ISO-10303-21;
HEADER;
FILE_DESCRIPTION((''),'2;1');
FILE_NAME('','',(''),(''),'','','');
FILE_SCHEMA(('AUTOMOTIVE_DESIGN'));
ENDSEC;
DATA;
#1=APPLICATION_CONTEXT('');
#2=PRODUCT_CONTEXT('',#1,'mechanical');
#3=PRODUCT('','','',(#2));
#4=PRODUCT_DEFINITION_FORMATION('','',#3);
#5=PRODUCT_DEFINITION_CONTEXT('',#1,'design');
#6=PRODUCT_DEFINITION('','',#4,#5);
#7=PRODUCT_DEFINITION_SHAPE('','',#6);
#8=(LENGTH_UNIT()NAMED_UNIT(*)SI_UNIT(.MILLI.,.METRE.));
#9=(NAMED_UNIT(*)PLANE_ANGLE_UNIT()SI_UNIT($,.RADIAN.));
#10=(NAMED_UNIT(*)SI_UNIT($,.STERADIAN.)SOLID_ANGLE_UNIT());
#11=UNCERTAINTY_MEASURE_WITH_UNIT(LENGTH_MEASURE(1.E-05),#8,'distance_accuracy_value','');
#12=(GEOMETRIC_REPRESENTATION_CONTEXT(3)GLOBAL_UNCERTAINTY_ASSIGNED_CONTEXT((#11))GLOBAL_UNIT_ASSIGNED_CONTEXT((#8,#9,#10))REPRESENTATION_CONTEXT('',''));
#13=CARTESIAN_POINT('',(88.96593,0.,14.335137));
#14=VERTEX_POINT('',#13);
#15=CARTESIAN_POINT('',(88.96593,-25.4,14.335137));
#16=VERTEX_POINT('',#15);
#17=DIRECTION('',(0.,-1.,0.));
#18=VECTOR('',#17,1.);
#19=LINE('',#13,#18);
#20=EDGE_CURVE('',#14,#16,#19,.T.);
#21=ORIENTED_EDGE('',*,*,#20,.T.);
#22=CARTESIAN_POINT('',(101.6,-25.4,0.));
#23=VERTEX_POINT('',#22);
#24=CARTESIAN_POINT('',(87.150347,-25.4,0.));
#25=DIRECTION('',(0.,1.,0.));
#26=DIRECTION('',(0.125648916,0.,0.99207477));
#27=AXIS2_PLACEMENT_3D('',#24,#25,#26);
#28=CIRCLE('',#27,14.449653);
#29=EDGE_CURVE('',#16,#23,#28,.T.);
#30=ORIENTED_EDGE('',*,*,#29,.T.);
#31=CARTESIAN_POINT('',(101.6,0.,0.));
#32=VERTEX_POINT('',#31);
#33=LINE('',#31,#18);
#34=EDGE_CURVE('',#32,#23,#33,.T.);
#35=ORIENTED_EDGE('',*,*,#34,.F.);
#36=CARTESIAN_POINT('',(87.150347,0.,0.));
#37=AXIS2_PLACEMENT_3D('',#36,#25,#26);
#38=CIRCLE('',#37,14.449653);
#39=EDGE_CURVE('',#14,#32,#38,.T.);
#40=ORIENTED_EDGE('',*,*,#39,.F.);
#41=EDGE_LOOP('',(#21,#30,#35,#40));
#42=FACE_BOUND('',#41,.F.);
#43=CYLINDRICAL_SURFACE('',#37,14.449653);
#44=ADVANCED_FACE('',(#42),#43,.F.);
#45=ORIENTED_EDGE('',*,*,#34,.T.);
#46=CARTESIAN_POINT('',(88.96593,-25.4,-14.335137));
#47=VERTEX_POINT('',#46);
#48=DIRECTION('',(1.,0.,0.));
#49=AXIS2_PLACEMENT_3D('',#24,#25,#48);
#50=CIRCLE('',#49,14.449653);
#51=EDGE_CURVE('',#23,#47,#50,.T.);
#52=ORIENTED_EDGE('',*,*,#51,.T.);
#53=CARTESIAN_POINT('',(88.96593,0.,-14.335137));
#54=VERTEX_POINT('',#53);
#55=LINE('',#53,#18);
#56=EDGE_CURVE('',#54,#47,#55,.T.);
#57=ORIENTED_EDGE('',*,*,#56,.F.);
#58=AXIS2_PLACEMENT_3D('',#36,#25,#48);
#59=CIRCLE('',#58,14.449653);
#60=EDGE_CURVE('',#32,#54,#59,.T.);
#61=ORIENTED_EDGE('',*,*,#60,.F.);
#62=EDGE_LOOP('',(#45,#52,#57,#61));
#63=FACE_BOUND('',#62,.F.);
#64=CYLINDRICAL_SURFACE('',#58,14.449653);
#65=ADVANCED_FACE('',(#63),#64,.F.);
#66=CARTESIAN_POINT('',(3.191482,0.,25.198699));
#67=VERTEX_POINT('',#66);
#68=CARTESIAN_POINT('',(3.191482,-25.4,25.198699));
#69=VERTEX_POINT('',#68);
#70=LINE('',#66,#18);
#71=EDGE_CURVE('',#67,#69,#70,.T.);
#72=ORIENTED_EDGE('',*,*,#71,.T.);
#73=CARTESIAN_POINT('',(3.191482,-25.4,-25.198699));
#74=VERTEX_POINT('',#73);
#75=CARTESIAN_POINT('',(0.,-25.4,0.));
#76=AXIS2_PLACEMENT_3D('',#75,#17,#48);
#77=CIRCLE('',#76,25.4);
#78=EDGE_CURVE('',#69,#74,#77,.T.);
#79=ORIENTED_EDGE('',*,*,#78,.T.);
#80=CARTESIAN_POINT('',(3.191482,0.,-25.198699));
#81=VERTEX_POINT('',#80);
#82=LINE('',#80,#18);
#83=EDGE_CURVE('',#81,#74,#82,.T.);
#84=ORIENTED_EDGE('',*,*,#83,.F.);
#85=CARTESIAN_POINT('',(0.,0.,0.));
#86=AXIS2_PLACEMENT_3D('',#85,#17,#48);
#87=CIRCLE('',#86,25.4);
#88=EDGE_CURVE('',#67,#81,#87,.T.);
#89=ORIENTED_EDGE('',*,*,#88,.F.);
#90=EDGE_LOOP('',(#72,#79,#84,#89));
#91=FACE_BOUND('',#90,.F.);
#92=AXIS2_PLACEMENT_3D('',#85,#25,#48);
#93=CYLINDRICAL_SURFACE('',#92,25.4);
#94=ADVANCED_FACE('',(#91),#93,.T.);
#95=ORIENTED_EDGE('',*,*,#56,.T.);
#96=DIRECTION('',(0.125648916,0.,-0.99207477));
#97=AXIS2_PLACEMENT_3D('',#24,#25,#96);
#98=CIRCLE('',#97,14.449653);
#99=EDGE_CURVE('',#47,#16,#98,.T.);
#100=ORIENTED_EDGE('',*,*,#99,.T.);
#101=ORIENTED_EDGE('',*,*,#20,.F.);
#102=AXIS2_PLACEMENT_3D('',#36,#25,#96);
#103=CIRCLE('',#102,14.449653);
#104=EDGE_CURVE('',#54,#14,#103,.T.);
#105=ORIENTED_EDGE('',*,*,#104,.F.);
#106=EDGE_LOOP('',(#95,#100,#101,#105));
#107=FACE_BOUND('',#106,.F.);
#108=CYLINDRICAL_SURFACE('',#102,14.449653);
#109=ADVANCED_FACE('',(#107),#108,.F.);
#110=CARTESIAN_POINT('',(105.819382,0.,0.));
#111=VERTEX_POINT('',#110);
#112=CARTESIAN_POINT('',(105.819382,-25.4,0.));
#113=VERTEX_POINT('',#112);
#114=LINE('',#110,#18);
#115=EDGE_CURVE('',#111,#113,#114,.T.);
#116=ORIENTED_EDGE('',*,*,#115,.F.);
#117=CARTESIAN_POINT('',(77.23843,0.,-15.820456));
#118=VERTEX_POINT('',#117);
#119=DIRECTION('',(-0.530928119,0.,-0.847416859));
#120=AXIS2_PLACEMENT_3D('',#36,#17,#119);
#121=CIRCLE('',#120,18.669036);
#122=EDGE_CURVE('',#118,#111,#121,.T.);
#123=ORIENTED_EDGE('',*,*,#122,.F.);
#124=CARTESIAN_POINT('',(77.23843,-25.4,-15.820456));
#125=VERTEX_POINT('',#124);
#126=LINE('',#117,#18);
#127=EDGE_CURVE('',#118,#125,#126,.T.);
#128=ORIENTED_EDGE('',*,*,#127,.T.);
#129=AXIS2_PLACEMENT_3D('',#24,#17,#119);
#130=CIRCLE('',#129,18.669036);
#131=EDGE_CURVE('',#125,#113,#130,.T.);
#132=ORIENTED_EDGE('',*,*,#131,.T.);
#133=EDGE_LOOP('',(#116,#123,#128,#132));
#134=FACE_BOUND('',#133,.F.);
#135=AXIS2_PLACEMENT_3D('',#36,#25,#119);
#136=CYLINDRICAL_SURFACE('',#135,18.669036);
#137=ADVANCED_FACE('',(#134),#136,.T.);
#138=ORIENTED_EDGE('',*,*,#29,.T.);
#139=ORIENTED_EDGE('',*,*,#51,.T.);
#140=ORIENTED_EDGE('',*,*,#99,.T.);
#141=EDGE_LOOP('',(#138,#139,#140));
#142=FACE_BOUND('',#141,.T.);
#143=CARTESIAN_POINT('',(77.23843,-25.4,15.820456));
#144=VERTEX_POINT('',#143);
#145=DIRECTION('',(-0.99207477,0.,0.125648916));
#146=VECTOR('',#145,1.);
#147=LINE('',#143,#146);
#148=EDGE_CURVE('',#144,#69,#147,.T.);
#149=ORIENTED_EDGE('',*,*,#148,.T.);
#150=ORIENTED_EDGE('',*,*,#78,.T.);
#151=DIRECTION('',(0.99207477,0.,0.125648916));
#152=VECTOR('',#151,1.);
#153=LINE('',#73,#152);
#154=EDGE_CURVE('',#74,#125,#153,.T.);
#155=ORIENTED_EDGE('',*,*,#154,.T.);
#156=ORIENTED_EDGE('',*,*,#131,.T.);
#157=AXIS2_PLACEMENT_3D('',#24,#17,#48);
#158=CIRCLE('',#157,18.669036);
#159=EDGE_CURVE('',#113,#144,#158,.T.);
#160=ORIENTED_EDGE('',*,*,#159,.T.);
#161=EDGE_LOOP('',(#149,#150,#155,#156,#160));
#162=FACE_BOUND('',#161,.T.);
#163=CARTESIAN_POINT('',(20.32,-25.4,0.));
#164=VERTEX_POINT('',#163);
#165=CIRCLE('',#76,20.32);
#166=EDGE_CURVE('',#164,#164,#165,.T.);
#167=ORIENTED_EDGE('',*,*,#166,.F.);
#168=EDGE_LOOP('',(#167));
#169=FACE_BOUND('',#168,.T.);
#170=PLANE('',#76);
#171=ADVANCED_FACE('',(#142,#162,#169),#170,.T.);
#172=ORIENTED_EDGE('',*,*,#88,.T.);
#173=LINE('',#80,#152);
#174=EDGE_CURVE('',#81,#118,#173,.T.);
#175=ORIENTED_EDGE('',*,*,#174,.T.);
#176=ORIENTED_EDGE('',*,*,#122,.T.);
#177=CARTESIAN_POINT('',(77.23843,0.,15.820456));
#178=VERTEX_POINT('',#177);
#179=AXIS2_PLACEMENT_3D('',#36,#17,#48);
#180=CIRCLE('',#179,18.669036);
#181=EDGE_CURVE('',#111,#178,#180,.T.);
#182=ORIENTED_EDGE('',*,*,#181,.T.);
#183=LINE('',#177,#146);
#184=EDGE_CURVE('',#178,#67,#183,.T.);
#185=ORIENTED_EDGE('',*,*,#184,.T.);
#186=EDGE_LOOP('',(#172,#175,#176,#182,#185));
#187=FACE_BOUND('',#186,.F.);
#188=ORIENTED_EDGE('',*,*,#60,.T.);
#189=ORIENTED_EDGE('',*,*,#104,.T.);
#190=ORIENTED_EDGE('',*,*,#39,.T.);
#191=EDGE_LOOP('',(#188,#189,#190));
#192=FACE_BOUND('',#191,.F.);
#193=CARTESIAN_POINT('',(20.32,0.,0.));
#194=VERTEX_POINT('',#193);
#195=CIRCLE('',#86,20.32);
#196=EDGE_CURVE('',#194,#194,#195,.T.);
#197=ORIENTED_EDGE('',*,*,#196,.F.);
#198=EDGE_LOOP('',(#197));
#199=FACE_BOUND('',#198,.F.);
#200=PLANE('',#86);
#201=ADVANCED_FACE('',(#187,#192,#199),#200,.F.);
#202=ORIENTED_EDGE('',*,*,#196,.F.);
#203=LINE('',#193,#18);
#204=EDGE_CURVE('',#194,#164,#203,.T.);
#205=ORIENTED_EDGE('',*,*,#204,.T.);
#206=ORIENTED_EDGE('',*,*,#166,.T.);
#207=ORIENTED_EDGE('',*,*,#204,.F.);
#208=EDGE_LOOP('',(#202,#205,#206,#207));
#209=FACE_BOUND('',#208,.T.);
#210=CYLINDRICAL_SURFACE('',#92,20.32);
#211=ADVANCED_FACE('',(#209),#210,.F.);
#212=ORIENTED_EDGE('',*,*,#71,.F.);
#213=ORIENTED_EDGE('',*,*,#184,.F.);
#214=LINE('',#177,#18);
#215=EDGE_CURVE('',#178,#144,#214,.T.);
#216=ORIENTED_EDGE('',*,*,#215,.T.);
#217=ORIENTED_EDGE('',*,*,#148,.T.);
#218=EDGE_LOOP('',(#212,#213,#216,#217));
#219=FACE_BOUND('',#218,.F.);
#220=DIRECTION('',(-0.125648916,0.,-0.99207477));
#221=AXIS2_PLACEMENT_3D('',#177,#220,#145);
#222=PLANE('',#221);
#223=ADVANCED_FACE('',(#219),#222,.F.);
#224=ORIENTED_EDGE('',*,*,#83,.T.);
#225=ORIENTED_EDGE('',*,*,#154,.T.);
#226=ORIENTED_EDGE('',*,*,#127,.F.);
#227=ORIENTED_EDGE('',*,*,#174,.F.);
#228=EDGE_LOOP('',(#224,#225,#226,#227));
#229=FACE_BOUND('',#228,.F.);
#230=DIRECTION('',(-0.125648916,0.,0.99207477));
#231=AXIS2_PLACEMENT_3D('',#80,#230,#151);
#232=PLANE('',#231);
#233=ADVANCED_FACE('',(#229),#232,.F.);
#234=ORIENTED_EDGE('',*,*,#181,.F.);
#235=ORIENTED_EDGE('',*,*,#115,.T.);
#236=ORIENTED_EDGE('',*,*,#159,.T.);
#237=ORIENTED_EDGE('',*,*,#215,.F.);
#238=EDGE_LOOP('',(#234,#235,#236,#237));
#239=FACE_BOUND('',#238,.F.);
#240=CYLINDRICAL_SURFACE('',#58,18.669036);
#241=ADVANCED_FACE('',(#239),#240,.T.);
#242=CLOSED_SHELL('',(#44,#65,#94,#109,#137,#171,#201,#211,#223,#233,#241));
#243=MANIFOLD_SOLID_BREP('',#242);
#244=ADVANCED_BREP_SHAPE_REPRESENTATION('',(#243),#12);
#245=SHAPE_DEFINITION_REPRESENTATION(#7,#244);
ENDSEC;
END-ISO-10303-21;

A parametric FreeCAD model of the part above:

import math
import FreeCAD as App
import Part
import Sketcher
Q = App.Units.Quantity

doc = App.newDocument("Part")
body = doc.addObject("PartDesign::Body", "Body")

# Sketch on XZ plane
sketch1 = body.newObject("Sketcher::SketchObject", "Sketch")
sketch1.AttachmentSupport = (doc.getObject("XZ_Plane"), [""])
sketch1.MapMode = "FlatFace"
sketch1.addGeometry([
    Part.ArcOfCircle(Part.Circle(App.Vector(0, 0, 0), App.Vector(0, 0, 1), 25.4), math.radians(82.781769), math.radians(277.218231)),  # 0
    Part.LineSegment(App.Vector(3.191482, -25.198699, 0), App.Vector(77.23843, -15.820456, 0)),  # 1
    Part.ArcOfCircle(Part.Circle(App.Vector(87.150347, 0, 0), App.Vector(0, 0, 1), 18.669036), math.radians(-122.068186), math.radians(0)),  # 2
    Part.ArcOfCircle(Part.Circle(App.Vector(87.150347, 0, 0), App.Vector(0, 0, 1), 18.669036), math.radians(0), math.radians(122.068186)),  # 3
    Part.LineSegment(App.Vector(77.23843, 15.820456, 0), App.Vector(3.191482, 25.198699, 0)),  # 4
    Part.Circle(App.Vector(0, 0, 0), App.Vector(0, 0, 1), 20.32),  # 5
    Part.ArcOfCircle(Part.Circle(App.Vector(87.150347, 0, 0), App.Vector(0, 0, 1), 14.449653), math.radians(82.781769), math.radians(277.218231)),  # 6
    Part.ArcOfCircle(Part.Circle(App.Vector(87.150347, 0, 0), App.Vector(0, 0, 1), 14.449653), math.radians(0), math.radians(82.781769)),  # 7
    Part.ArcOfCircle(Part.Circle(App.Vector(87.150347, 0, 0), App.Vector(0, 0, 1), 14.449653), math.radians(-82.781769), math.radians(0)),  # 8
], False)
sketch1.addConstraint([
    Sketcher.Constraint("Tangent", 0, 2, 1, 1),
    Sketcher.Constraint("Coincident", 1, 2, 2, 1),
    Sketcher.Constraint("Tangent", 2, 2, 3, 1),
    Sketcher.Constraint("Coincident", 3, 2, 4, 1),
    Sketcher.Constraint("Tangent", 4, 2, 0, 1),
    Sketcher.Constraint("Tangent", 6, 1, 7, 2),
    Sketcher.Constraint("Tangent", 7, 1, 8, 2),
    Sketcher.Constraint("Tangent", 8, 1, 6, 2),
    Sketcher.Constraint("Coincident", 0, 3, -1, 1),
    Sketcher.Constraint("Coincident", 5, 3, -1, 1),
    Sketcher.Constraint("Coincident", 6, 3, 2, 3),
    Sketcher.Constraint("Equal", 2, 3),
    Sketcher.Constraint("Symmetric", 1, 2, 3, 2, -1),
    Sketcher.Constraint("PointOnObject", 2, 2, -1),
    Sketcher.Constraint("PointOnObject", 7, 1, -1),
    Sketcher.Constraint("Vertical", 6, 1, 8, 1),
    Sketcher.Constraint("Radius", 0, Q("1 in")),
    Sketcher.Constraint("Diameter", 5, Q("1.6 in")),
    Sketcher.Constraint("DistanceX", -1, 1, 7, 1, Q("4 in")),
    Sketcher.Constraint("Radius", 2, Q("18.669036 mm")),
    Sketcher.Constraint("Radius", 6, Q("14.449653 mm")),
    Sketcher.Constraint("DistanceY", 0, 2, -1, 1, Q("25.198699 mm")),
    Sketcher.Constraint("DistanceX", 3, 2, 6, 1, Q("11.727499 mm")),
])
pad1 = body.newObject("PartDesign::Pad", "Pad")
pad1.Profile = sketch1
pad1.Length = Q("1 in")

doc.recompute()
